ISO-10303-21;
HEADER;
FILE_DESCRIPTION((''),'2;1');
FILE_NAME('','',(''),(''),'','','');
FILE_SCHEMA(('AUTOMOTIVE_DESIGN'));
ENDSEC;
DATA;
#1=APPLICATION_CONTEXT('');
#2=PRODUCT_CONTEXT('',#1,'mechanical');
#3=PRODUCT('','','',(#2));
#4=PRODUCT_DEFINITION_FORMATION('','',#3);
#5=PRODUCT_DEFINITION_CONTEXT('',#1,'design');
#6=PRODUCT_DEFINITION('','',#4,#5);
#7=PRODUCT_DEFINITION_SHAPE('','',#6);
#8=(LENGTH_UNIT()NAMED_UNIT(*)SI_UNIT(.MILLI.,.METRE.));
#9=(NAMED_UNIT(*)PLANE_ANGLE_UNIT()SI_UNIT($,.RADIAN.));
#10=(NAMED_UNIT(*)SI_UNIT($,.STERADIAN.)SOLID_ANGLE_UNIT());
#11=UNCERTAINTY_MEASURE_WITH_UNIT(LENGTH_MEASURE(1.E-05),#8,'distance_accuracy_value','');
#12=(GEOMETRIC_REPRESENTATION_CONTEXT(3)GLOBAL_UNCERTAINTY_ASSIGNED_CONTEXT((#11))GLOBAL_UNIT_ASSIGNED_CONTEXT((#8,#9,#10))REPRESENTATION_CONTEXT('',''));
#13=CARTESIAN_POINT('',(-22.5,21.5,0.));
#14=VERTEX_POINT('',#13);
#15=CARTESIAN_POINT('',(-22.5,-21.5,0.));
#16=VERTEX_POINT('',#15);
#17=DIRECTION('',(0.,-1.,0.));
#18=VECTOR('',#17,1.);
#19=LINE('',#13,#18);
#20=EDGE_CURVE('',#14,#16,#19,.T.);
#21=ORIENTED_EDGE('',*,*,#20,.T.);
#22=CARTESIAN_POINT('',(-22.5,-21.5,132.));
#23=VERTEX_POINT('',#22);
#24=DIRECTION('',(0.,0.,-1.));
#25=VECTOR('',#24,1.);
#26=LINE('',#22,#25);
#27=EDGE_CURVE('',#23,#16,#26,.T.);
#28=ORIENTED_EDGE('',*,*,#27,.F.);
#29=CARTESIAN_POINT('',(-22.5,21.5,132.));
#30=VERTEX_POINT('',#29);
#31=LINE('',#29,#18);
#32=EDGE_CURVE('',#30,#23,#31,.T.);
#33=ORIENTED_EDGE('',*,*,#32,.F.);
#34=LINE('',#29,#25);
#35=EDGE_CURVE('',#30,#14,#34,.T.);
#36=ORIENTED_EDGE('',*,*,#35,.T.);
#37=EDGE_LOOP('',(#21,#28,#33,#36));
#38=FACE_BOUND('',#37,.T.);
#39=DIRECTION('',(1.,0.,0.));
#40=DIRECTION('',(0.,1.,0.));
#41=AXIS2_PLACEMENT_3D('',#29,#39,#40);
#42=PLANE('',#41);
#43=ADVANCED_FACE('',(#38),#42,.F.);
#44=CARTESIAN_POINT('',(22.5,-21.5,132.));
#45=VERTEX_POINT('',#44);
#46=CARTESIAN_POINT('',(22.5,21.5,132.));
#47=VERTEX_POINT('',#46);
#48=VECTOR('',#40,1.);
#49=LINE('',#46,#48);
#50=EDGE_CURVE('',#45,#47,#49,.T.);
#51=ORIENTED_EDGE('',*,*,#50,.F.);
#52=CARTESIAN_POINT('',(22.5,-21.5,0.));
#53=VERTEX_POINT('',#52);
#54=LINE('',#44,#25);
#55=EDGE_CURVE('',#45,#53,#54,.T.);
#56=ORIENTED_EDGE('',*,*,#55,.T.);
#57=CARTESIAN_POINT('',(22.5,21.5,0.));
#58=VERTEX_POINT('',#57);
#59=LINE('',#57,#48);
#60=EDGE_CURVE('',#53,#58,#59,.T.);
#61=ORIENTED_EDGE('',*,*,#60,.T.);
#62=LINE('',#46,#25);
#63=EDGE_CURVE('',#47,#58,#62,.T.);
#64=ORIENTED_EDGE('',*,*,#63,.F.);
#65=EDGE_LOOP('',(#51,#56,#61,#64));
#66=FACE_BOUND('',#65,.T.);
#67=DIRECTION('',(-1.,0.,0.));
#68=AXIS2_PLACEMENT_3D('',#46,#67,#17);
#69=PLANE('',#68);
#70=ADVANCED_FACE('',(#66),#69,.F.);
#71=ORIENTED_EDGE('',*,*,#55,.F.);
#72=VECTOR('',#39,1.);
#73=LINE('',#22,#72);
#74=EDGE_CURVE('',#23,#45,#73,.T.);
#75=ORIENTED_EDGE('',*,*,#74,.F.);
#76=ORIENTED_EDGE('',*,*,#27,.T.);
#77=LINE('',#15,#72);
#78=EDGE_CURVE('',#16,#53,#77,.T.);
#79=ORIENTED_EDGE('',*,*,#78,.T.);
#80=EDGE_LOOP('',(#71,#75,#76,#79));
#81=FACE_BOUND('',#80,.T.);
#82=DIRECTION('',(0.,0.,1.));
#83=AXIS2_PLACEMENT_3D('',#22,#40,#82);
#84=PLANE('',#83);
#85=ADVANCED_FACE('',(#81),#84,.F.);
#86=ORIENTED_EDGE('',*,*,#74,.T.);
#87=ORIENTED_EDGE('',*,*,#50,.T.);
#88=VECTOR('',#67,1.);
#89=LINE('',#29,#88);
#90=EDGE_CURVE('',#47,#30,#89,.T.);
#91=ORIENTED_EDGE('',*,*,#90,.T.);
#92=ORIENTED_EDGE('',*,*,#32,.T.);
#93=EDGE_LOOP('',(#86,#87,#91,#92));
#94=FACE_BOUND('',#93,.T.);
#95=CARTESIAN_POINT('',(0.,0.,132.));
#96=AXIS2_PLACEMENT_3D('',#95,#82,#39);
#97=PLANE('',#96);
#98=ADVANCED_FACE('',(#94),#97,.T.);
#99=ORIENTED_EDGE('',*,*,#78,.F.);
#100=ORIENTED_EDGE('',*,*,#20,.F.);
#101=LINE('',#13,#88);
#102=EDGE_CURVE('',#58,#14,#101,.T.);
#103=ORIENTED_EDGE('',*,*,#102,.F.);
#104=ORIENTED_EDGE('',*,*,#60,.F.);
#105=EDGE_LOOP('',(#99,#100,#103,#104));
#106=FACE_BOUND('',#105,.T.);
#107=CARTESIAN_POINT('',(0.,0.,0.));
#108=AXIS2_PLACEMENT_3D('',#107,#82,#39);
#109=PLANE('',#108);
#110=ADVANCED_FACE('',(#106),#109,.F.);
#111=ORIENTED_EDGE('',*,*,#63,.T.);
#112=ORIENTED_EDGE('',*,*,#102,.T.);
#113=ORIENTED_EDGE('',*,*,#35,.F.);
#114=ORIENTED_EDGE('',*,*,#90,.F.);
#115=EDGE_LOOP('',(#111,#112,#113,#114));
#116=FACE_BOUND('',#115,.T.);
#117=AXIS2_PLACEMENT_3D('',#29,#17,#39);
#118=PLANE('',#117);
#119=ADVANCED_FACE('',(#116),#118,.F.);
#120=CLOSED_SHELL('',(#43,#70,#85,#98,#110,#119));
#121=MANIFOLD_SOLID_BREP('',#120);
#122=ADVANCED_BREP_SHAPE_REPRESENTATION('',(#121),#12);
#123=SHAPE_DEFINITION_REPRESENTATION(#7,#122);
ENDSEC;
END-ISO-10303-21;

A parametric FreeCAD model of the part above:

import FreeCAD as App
import Part
import Sketcher

V = App.Vector


def add_polygon(sketch, points):
    """Adds a closed chain of lines whose ends are joined by coincident constraints."""
    first, n = sketch.GeometryCount, len(points)
    for a, b in zip(points, points[1:] + points[:1]):
        sketch.addGeometry(Part.LineSegment(App.Vector(*a, 0), App.Vector(*b, 0)), False)
    for i in range(n):
        sketch.addConstraint(Sketcher.Constraint("Coincident", first + i, 2, first + (i + 1) % n, 1))

doc = App.newDocument("Part")
body = doc.addObject("PartDesign::Body", "Body")

sketch1 = body.newObject("Sketcher::SketchObject", "Sketch")
sketch1.AttachmentSupport = (doc.getObject("XY_Plane"), [""])
sketch1.MapMode = "FlatFace"
add_polygon(sketch1, [(-22.5, 21.5), (-22.5, -21.5), (22.5, -21.5), (22.5, 21.5)])
sketch1.addConstraint([
    Sketcher.Constraint("Vertical", 0),
    Sketcher.Constraint("Horizontal", 1),
    Sketcher.Constraint("Vertical", 2),
    Sketcher.Constraint("Horizontal", 3),
    Sketcher.Constraint("Symmetric", 0, 2, 2, 2, -1, 1),
    Sketcher.Constraint("DistanceX", 1, 1, 1, 2, 45.0),
    Sketcher.Constraint("DistanceY", 0, 2, 0, 1, 43.0),
])
pad1 = body.newObject("PartDesign::Pad", "Pad")
pad1.Profile = sketch1
pad1.Length = 132

doc.recompute()
